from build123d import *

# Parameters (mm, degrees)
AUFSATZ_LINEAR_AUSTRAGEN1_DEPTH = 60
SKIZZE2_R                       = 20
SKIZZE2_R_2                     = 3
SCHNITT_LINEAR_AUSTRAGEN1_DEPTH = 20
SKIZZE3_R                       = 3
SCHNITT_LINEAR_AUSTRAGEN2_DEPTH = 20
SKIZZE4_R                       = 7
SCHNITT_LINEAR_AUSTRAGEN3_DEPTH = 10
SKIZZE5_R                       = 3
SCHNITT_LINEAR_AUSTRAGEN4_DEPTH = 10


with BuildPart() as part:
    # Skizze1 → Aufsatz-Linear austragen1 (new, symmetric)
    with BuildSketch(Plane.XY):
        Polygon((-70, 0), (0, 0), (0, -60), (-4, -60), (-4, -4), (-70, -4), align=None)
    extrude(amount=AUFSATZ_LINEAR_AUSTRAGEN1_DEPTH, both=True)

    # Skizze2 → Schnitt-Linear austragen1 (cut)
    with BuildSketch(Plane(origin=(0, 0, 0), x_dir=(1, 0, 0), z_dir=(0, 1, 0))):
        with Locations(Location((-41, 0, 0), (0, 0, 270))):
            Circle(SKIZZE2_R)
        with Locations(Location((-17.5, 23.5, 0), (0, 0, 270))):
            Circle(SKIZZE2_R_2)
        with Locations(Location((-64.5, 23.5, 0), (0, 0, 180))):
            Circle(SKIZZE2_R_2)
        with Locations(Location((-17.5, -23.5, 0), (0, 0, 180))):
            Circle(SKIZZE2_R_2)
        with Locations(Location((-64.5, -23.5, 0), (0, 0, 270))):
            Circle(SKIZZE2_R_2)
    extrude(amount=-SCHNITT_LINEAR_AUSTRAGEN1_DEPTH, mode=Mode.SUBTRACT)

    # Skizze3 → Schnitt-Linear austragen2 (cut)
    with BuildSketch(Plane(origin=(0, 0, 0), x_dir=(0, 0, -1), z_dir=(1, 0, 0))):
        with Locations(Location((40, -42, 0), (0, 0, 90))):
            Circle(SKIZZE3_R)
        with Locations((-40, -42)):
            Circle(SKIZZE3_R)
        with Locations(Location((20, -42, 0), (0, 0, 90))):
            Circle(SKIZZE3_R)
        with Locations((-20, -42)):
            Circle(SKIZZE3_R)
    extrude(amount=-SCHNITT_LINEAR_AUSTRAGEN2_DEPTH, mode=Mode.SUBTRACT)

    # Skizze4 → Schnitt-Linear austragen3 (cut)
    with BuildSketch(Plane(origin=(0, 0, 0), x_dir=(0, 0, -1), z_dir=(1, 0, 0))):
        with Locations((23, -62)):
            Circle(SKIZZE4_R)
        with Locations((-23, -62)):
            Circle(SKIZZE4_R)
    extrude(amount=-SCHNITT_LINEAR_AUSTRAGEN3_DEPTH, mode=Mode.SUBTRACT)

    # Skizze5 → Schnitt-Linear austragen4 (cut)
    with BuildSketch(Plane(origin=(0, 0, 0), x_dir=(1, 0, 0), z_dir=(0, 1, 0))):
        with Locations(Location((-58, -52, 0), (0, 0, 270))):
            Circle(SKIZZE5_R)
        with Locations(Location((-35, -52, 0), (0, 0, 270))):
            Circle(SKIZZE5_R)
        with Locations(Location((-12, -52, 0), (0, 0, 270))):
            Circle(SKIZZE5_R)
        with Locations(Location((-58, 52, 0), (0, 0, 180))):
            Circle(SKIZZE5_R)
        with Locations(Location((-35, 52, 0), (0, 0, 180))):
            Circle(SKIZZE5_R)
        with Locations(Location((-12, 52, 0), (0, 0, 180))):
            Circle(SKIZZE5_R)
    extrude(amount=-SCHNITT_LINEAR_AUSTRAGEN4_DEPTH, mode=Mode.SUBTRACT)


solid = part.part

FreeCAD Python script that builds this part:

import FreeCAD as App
import Part
import Sketcher
Q = App.Units.Quantity


def add_polygon(sketch, points):
    """Adds a closed chain of lines whose ends are joined by coincident constraints."""
    first, n = sketch.GeometryCount, len(points)
    for a, b in zip(points, points[1:] + points[:1]):
        sketch.addGeometry(Part.LineSegment(App.Vector(*a, 0), App.Vector(*b, 0)), False)
    for i in range(n):
        sketch.addConstraint(Sketcher.Constraint("Coincident", first + i, 2, first + (i + 1) % n, 1))

doc = App.newDocument("Part")
body = doc.addObject("PartDesign::Body", "Body")

sketch1 = body.newObject("Sketcher::SketchObject", "Sketch")
sketch1.AttachmentSupport = (doc.getObject("XY_Plane"), [""])
sketch1.MapMode = "FlatFace"
add_polygon(sketch1, [(0, 0), (-70, 0), (-70, -4), (-4, -4), (-4, -60), (0, -60)])
sketch1.addConstraint(Sketcher.Constraint("Horizontal", 0))
sketch1.addConstraint(Sketcher.Constraint("Vertical", 1))
sketch1.addConstraint(Sketcher.Constraint("Horizontal", 2))
sketch1.addConstraint(Sketcher.Constraint("Vertical", 3))
sketch1.addConstraint(Sketcher.Constraint("Horizontal", 4))
sketch1.addConstraint(Sketcher.Constraint("Vertical", 5))
sketch1.addConstraint(Sketcher.Constraint("Coincident", 5, 2, -1, 1))
sketch1.addConstraint(Sketcher.Constraint("Equal", 4, 1))
sketch1.addConstraint(Sketcher.Constraint("DistanceX", 0, 2, 0, 1, Q("70 mm")))
sketch1.addConstraint(Sketcher.Constraint("DistanceX", 2, 1, 2, 2, Q("66 mm")))
sketch1.addConstraint(Sketcher.Constraint("DistanceY", 3, 2, 3, 1, Q("56 mm")))
pad1 = body.newObject("PartDesign::Pad", "Pad")
pad1.Profile = sketch1
pad1.Length = 120
pad1.Midplane = True

sketch2 = body.newObject("Sketcher::SketchObject", "Sketch001")
sketch2.AttachmentSupport = (doc.getObject("XZ_Plane"), [""])
sketch2.MapMode = "FlatFace"
sketch2.addGeometry(Part.Circle(App.Vector(-41, 0, 0), App.Vector(0, 0, 1), 20), False)
sketch2.addGeometry(Part.Circle(App.Vector(-17.5, -23.5, 0), App.Vector(0, 0, 1), 3), False)
sketch2.addGeometry(Part.Circle(App.Vector(-64.5, -23.5, 0), App.Vector(0, 0, 1), 3), False)
sketch2.addGeometry(Part.Circle(App.Vector(-17.5, 23.5, 0), App.Vector(0, 0, 1), 3), False)
sketch2.addGeometry(Part.Circle(App.Vector(-64.5, 23.5, 0), App.Vector(0, 0, 1), 3), False)
sketch2.addConstraint(Sketcher.Constraint("Equal", 1, 2))
sketch2.addConstraint(Sketcher.Constraint("Equal", 2, 3))
sketch2.addConstraint(Sketcher.Constraint("Equal", 3, 4))
sketch2.addConstraint(Sketcher.Constraint("Symmetric", 1, 3, 3, 3, -1))
sketch2.addConstraint(Sketcher.Constraint("Symmetric", 2, 3, 4, 3, -1))
sketch2.addConstraint(Sketcher.Constraint("PointOnObject", 0, 3, -1))
sketch2.addConstraint(Sketcher.Constraint("Horizontal", 1, 3, 2, 3))
sketch2.addConstraint(Sketcher.Constraint("Diameter", 0, Q("40 mm")))
sketch2.addConstraint(Sketcher.Constraint("Diameter", 1, Q("6 mm")))
sketch2.addConstraint(Sketcher.Constraint("DistanceX", 0, 3, -1, 1, Q("41 mm")))
sketch2.addConstraint(Sketcher.Constraint("DistanceX", 2, 3, 1, 3, Q("47 mm")))
sketch2.addConstraint(Sketcher.Constraint("DistanceY", 1, 3, 3, 3, Q("47 mm")))
sketch2.addConstraint(Sketcher.Constraint("DistanceX", 1, 3, -1, 1, Q("17.5 mm")))
pocket1 = body.newObject("PartDesign::Pocket", "Pocket")
pocket1.Profile = sketch2
pocket1.Length = 20
pocket1.Reversed = True

sketch3 = body.newObject("Sketcher::SketchObject", "Sketch002")
sketch3.AttachmentSupport = (doc.getObject("YZ_Plane"), [""])
sketch3.MapMode = "FlatFace"
sketch3.addGeometry(Part.Circle(App.Vector(-42, -40, 0), App.Vector(0, 0, 1), 3), False)
sketch3.addGeometry(Part.Circle(App.Vector(-42, 40, 0), App.Vector(0, 0, 1), 3), False)
sketch3.addGeometry(Part.Circle(App.Vector(-42, -20, 0), App.Vector(0, 0, 1), 3), False)
sketch3.addGeometry(Part.Circle(App.Vector(-42, 20, 0), App.Vector(0, 0, 1), 3), False)
sketch3.addConstraint(Sketcher.Constraint("Equal", 0, 1))
sketch3.addConstraint(Sketcher.Constraint("Equal", 1, 2))
sketch3.addConstraint(Sketcher.Constraint("Equal", 2, 3))
sketch3.addConstraint(Sketcher.Constraint("Symmetric", 0, 3, 1, 3, -1))
sketch3.addConstraint(Sketcher.Constraint("Symmetric", 2, 3, 3, 3, -1))
sketch3.addConstraint(Sketcher.Constraint("Vertical", 1, 3, 2, 3))
sketch3.addConstraint(Sketcher.Constraint("Diameter", 0, Q("6 mm")))
sketch3.addConstraint(Sketcher.Constraint("DistanceX", 0, 3, -1, 1, Q("42 mm")))
sketch3.addConstraint(Sketcher.Constraint("DistanceY", 0, 3, -1, 1, Q("40 mm")))
sketch3.addConstraint(Sketcher.Constraint("DistanceY", 2, 3, -1, 1, Q("20 mm")))
pocket2 = body.newObject("PartDesign::Pocket", "Pocket001")
pocket2.Profile = sketch3
pocket2.Length = 20

sketch4 = body.newObject("Sketcher::SketchObject", "Sketch003")
sketch4.AttachmentSupport = (doc.getObject("YZ_Plane"), [""])
sketch4.MapMode = "FlatFace"
sketch4.addGeometry(Part.Circle(App.Vector(-62, -23, 0), App.Vector(0, 0, 1), 7), False)
sketch4.addGeometry(Part.Circle(App.Vector(-62, 23, 0), App.Vector(0, 0, 1), 7), False)
sketch4.addConstraint(Sketcher.Constraint("Equal", 0, 1))
sketch4.addConstraint(Sketcher.Constraint("Symmetric", 0, 3, 1, 3, -1))
sketch4.addConstraint(Sketcher.Constraint("Diameter", 0, Q("14 mm")))
sketch4.addConstraint(Sketcher.Constraint("DistanceX", 0, 3, -1, 1, Q("62 mm")))
sketch4.addConstraint(Sketcher.Constraint("DistanceY", 0, 3, -1, 1, Q("23 mm")))
pocket3 = body.newObject("PartDesign::Pocket", "Pocket002")
pocket3.Profile = sketch4
pocket3.Length = 10

sketch5 = body.newObject("Sketcher::SketchObject", "Sketch004")
sketch5.AttachmentSupport = (doc.getObject("XZ_Plane"), [""])
sketch5.MapMode = "FlatFace"
sketch5.addGeometry(Part.Circle(App.Vector(-58, 52, 0), App.Vector(0, 0, 1), 3), False)
sketch5.addGeometry(Part.Circle(App.Vector(-35, 52, 0), App.Vector(0, 0, 1), 3), False)
sketch5.addGeometry(Part.Circle(App.Vector(-12, 52, 0), App.Vector(0, 0, 1), 3), False)
sketch5.addGeometry(Part.Circle(App.Vector(-58, -52, 0), App.Vector(0, 0, 1), 3), False)
sketch5.addGeometry(Part.Circle(App.Vector(-35, -52, 0), App.Vector(0, 0, 1), 3), False)
sketch5.addGeometry(Part.Circle(App.Vector(-12, -52, 0), App.Vector(0, 0, 1), 3), False)
sketch5.addConstraint(Sketcher.Constraint("Equal", 0, 1))
sketch5.addConstraint(Sketcher.Constraint("Equal", 1, 2))
sketch5.addConstraint(Sketcher.Constraint("Equal", 2, 3))
sketch5.addConstraint(Sketcher.Constraint("Equal", 3, 4))
sketch5.addConstraint(Sketcher.Constraint("Equal", 4, 5))
sketch5.addConstraint(Sketcher.Constraint("Symmetric", 0, 3, 3, 3, -1))
sketch5.addConstraint(Sketcher.Constraint("Symmetric", 1, 3, 4, 3, -1))
sketch5.addConstraint(Sketcher.Constraint("Symmetric", 2, 3, 5, 3, -1))
sketch5.addConstraint(Sketcher.Constraint("Horizontal", 0, 3, 1, 3))
sketch5.addConstraint(Sketcher.Constraint("Horizontal", 1, 3, 2, 3))
sketch5.addConstraint(Sketcher.Constraint("Diameter", 0, Q("6 mm")))
sketch5.addConstraint(Sketcher.Constraint("DistanceX", 0, 3, -1, 1, Q("58 mm")))
sketch5.addConstraint(Sketcher.Constraint("DistanceY", -1, 1, 0, 3, Q("52 mm")))
sketch5.addConstraint(Sketcher.Constraint("DistanceX", 1, 3, -1, 1, Q("35 mm")))
sketch5.addConstraint(Sketcher.Constraint("DistanceX", 2, 3, -1, 1, Q("12 mm")))
pocket4 = body.newObject("PartDesign::Pocket", "Pocket003")
pocket4.Profile = sketch5
pocket4.Length = 10
pocket4.Reversed = True

doc.recompute()
